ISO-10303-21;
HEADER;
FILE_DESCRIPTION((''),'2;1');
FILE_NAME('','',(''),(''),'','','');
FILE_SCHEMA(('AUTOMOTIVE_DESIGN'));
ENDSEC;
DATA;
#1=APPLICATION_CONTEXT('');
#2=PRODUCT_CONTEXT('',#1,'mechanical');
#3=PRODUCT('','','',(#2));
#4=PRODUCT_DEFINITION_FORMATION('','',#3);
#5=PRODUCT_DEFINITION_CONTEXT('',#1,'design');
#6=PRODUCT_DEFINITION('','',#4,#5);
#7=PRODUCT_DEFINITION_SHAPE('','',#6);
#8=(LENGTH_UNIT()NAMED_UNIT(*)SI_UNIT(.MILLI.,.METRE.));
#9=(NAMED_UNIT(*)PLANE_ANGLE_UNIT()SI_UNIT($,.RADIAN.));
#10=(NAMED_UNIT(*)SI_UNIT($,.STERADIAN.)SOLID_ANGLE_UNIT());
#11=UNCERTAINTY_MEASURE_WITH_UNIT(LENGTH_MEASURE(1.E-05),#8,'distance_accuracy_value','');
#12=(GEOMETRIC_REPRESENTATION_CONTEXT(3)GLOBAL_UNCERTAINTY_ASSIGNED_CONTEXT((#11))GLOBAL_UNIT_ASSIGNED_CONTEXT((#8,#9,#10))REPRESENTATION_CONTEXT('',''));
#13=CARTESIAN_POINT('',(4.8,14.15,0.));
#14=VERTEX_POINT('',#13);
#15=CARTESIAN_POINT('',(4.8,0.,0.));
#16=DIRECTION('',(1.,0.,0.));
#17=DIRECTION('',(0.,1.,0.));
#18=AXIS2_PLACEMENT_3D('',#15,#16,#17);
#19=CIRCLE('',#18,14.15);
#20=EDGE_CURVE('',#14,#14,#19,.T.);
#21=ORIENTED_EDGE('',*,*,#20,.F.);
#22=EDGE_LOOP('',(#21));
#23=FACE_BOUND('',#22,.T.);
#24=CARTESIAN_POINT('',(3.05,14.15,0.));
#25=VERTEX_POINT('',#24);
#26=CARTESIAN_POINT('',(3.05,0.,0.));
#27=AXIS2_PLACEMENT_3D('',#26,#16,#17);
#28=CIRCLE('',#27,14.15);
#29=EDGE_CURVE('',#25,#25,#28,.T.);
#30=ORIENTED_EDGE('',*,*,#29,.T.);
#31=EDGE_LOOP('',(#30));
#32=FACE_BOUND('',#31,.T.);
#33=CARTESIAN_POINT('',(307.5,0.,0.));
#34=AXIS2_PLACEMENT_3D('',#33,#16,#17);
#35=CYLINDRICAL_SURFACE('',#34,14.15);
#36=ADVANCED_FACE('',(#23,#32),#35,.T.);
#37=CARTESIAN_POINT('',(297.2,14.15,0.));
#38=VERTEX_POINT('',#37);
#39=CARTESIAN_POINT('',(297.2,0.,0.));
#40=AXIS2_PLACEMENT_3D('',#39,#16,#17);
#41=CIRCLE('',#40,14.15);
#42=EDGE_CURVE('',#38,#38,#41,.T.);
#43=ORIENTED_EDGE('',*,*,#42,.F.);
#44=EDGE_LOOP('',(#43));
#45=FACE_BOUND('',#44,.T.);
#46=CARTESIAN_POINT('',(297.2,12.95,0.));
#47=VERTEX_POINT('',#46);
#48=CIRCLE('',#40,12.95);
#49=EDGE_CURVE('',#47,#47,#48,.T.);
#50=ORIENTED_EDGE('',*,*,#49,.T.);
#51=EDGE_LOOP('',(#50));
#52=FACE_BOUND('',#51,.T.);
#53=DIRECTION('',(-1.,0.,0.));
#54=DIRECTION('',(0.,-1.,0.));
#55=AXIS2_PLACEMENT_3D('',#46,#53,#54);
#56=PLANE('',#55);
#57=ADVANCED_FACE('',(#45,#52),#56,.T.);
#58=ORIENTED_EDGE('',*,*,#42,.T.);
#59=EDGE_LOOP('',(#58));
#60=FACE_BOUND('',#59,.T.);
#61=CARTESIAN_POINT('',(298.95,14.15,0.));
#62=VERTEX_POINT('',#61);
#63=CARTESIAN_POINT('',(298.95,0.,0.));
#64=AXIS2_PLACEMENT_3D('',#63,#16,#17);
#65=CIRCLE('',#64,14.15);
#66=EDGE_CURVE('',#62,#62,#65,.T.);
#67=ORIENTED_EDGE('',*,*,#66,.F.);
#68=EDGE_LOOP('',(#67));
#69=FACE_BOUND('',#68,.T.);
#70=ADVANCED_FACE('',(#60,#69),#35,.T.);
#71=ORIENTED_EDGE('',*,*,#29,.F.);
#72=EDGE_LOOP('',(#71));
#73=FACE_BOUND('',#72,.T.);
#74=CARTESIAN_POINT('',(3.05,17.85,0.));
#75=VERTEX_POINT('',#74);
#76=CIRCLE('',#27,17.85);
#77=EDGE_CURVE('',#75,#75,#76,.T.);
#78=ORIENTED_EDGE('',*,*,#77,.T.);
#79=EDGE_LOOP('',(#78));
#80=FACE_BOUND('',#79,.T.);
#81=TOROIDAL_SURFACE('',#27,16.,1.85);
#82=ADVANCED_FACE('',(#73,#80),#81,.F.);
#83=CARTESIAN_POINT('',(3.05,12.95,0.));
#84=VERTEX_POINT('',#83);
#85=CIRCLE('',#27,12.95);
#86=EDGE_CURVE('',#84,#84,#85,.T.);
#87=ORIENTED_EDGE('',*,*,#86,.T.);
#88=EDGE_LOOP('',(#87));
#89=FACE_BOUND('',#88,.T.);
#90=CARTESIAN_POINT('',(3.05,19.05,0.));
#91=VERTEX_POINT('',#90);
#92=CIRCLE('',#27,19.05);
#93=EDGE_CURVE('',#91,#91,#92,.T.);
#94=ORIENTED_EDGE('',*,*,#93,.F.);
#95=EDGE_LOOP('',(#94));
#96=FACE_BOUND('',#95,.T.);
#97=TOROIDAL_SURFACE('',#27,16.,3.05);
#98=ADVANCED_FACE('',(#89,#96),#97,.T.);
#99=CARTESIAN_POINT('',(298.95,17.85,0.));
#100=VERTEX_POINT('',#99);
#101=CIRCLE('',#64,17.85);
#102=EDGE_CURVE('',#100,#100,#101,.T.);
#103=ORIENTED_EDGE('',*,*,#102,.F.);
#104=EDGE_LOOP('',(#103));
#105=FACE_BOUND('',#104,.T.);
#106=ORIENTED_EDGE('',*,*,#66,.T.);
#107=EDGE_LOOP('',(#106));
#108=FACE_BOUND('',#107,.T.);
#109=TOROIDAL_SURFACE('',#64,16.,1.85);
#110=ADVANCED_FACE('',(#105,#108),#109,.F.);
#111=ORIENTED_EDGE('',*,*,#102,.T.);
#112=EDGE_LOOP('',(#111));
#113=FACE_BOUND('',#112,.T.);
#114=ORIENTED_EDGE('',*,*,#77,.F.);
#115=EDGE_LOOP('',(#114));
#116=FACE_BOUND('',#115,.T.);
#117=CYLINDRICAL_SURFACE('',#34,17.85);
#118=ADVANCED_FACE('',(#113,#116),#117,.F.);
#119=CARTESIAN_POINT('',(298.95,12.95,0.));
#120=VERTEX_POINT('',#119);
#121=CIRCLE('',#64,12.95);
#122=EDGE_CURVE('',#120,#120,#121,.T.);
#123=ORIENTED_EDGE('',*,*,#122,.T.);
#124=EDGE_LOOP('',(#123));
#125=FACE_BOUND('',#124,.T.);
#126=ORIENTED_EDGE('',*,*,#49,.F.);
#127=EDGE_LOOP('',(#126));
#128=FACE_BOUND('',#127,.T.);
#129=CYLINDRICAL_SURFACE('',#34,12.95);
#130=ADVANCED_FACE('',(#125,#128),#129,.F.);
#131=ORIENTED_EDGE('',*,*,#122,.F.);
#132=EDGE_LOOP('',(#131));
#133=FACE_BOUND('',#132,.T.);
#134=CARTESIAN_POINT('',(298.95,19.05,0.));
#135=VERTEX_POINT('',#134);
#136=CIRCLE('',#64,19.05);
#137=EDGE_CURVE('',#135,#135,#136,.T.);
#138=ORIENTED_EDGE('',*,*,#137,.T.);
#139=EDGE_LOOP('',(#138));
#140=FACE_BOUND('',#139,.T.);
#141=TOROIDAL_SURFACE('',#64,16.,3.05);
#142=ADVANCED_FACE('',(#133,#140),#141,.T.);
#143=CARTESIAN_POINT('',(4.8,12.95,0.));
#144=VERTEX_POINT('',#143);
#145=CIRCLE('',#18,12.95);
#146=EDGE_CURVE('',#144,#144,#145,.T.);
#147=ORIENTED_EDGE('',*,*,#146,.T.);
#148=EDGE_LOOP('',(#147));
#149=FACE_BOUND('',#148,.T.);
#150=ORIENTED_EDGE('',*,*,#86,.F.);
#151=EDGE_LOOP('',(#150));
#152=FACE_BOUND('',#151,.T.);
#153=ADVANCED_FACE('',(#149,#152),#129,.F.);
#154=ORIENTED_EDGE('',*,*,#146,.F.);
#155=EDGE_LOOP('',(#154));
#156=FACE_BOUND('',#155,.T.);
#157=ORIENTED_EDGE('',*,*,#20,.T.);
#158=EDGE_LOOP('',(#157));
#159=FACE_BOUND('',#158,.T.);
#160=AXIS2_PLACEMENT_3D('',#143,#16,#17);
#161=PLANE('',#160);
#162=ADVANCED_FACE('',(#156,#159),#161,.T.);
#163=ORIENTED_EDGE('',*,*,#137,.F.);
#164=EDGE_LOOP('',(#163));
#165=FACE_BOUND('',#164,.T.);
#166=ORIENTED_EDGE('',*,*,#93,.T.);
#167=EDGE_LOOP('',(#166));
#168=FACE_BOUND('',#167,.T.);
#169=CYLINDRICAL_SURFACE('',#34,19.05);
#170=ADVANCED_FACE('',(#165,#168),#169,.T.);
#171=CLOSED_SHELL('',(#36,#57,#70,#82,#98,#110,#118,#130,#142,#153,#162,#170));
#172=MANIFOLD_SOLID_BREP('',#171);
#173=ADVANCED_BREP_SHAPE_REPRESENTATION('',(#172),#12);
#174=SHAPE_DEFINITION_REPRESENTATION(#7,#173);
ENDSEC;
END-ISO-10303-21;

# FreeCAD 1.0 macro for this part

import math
import FreeCAD as App
import Part
import Sketcher

V = App.Vector

doc = App.newDocument("Part")
body = doc.addObject("PartDesign::Body", "Body")

sketch1 = doc.addObject("Sketcher::SketchObject", "Sketch")
body.addObject(sketch1)
sketch1.AttachmentSupport = (doc.XY_Plane, [""])
sketch1.MapMode = "FlatFace"
sketch1.addGeometry(Part.LineSegment(V(4.8, 12.9, 0), V(4.8, 14.2, 0)), False)
sketch1.addGeometry(Part.LineSegment(V(4.8, 14.2, 0), V(3, 14.2, 0)), False)
sketch1.addGeometry(Part.ArcOfCircle(Part.Circle(V(3, 16, 0), V(0, 0, 1), 1.9), math.radians(90), math.radians(270)), False)
sketch1.addGeometry(Part.LineSegment(V(3, 17.9, 0), V(298.9, 17.9, 0)), False)
sketch1.addGeometry(Part.ArcOfCircle(Part.Circle(V(298.9, 16, 0), V(0, 0, 1), 1.9), math.radians(-90), math.radians(90)), False)
sketch1.addGeometry(Part.LineSegment(V(298.9, 14.2, 0), V(297.2, 14.2, 0)), False)
sketch1.addGeometry(Part.LineSegment(V(297.2, 14.2, 0), V(297.2, 12.9, 0)), False)
sketch1.addGeometry(Part.LineSegment(V(297.2, 12.9, 0), V(298.9, 12.9, 0)), False)
sketch1.addGeometry(Part.ArcOfCircle(Part.Circle(V(298.9, 16, 0), V(0, 0, 1), 3), math.radians(-90), math.radians(90)), False)
sketch1.addGeometry(Part.LineSegment(V(298.9, 19.1, 0), V(3, 19.1, 0)), False)
sketch1.addGeometry(Part.ArcOfCircle(Part.Circle(V(3, 16, 0), V(0, 0, 1), 3), math.radians(90), math.radians(270)), False)
sketch1.addGeometry(Part.LineSegment(V(3, 12.9, 0), V(4.8, 12.9, 0)), False)
sketch1.addConstraint(Sketcher.Constraint("Coincident", 0, 2, 1, 1))
sketch1.addConstraint(Sketcher.Constraint("Tangent", 1, 2, 2, 2))
sketch1.addConstraint(Sketcher.Constraint("Tangent", 2, 1, 3, 1))
sketch1.addConstraint(Sketcher.Constraint("Tangent", 3, 2, 4, 2))
sketch1.addConstraint(Sketcher.Constraint("Tangent", 4, 1, 5, 1))
sketch1.addConstraint(Sketcher.Constraint("Coincident", 5, 2, 6, 1))
sketch1.addConstraint(Sketcher.Constraint("Coincident", 6, 2, 7, 1))
sketch1.addConstraint(Sketcher.Constraint("Tangent", 7, 2, 8, 1))
sketch1.addConstraint(Sketcher.Constraint("Tangent", 8, 2, 9, 1))
sketch1.addConstraint(Sketcher.Constraint("Tangent", 9, 2, 10, 1))
sketch1.addConstraint(Sketcher.Constraint("Tangent", 10, 2, 11, 1))
sketch1.addConstraint(Sketcher.Constraint("Coincident", 11, 2, 0, 1))
sketch1.addConstraint(Sketcher.Constraint("Vertical", 0))
sketch1.addConstraint(Sketcher.Constraint("Horizontal", 1))
sketch1.addConstraint(Sketcher.Constraint("Horizontal", 3))
sketch1.addConstraint(Sketcher.Constraint("Horizontal", 5))
sketch1.addConstraint(Sketcher.Constraint("Vertical", 6))
sketch1.addConstraint(Sketcher.Constraint("Horizontal", 7))
sketch1.addConstraint(Sketcher.Constraint("Horizontal", 9))
sketch1.addConstraint(Sketcher.Constraint("Horizontal", 11))
sketch1.addConstraint(Sketcher.Constraint("Coincident", 8, 3, 4, 3))
sketch1.addConstraint(Sketcher.Constraint("Coincident", 10, 3, 2, 3))
sketch1.addConstraint(Sketcher.Constraint("Equal", 2, 4))
sketch1.addConstraint(Sketcher.Constraint("Equal", 1, 5))
sketch1.addConstraint(Sketcher.Constraint("Radius", 2, 1.85))
sketch1.addConstraint(Sketcher.Constraint("Radius", 8, 3.05))
sketch1.addConstraint(Sketcher.Constraint("DistanceX", 3, 1, 3, 2, 295.9))
sketch1.addConstraint(Sketcher.Constraint("DistanceY", -1, 1, 2, 3, 16.0))
sketch1.addConstraint(Sketcher.Constraint("DistanceX", 1, 2, 1, 1, 1.75))
sketch1.addConstraint(Sketcher.Constraint("DistanceX", -1, 1, 0, 2, 4.8))
revolution = doc.addObject("PartDesign::Revolution", "Revolution")
body.addObject(revolution)
revolution.Profile = sketch1
revolution.ReferenceAxis = (sketch1, ["H_Axis"])
revolution.Angle = 360

doc.recompute()
